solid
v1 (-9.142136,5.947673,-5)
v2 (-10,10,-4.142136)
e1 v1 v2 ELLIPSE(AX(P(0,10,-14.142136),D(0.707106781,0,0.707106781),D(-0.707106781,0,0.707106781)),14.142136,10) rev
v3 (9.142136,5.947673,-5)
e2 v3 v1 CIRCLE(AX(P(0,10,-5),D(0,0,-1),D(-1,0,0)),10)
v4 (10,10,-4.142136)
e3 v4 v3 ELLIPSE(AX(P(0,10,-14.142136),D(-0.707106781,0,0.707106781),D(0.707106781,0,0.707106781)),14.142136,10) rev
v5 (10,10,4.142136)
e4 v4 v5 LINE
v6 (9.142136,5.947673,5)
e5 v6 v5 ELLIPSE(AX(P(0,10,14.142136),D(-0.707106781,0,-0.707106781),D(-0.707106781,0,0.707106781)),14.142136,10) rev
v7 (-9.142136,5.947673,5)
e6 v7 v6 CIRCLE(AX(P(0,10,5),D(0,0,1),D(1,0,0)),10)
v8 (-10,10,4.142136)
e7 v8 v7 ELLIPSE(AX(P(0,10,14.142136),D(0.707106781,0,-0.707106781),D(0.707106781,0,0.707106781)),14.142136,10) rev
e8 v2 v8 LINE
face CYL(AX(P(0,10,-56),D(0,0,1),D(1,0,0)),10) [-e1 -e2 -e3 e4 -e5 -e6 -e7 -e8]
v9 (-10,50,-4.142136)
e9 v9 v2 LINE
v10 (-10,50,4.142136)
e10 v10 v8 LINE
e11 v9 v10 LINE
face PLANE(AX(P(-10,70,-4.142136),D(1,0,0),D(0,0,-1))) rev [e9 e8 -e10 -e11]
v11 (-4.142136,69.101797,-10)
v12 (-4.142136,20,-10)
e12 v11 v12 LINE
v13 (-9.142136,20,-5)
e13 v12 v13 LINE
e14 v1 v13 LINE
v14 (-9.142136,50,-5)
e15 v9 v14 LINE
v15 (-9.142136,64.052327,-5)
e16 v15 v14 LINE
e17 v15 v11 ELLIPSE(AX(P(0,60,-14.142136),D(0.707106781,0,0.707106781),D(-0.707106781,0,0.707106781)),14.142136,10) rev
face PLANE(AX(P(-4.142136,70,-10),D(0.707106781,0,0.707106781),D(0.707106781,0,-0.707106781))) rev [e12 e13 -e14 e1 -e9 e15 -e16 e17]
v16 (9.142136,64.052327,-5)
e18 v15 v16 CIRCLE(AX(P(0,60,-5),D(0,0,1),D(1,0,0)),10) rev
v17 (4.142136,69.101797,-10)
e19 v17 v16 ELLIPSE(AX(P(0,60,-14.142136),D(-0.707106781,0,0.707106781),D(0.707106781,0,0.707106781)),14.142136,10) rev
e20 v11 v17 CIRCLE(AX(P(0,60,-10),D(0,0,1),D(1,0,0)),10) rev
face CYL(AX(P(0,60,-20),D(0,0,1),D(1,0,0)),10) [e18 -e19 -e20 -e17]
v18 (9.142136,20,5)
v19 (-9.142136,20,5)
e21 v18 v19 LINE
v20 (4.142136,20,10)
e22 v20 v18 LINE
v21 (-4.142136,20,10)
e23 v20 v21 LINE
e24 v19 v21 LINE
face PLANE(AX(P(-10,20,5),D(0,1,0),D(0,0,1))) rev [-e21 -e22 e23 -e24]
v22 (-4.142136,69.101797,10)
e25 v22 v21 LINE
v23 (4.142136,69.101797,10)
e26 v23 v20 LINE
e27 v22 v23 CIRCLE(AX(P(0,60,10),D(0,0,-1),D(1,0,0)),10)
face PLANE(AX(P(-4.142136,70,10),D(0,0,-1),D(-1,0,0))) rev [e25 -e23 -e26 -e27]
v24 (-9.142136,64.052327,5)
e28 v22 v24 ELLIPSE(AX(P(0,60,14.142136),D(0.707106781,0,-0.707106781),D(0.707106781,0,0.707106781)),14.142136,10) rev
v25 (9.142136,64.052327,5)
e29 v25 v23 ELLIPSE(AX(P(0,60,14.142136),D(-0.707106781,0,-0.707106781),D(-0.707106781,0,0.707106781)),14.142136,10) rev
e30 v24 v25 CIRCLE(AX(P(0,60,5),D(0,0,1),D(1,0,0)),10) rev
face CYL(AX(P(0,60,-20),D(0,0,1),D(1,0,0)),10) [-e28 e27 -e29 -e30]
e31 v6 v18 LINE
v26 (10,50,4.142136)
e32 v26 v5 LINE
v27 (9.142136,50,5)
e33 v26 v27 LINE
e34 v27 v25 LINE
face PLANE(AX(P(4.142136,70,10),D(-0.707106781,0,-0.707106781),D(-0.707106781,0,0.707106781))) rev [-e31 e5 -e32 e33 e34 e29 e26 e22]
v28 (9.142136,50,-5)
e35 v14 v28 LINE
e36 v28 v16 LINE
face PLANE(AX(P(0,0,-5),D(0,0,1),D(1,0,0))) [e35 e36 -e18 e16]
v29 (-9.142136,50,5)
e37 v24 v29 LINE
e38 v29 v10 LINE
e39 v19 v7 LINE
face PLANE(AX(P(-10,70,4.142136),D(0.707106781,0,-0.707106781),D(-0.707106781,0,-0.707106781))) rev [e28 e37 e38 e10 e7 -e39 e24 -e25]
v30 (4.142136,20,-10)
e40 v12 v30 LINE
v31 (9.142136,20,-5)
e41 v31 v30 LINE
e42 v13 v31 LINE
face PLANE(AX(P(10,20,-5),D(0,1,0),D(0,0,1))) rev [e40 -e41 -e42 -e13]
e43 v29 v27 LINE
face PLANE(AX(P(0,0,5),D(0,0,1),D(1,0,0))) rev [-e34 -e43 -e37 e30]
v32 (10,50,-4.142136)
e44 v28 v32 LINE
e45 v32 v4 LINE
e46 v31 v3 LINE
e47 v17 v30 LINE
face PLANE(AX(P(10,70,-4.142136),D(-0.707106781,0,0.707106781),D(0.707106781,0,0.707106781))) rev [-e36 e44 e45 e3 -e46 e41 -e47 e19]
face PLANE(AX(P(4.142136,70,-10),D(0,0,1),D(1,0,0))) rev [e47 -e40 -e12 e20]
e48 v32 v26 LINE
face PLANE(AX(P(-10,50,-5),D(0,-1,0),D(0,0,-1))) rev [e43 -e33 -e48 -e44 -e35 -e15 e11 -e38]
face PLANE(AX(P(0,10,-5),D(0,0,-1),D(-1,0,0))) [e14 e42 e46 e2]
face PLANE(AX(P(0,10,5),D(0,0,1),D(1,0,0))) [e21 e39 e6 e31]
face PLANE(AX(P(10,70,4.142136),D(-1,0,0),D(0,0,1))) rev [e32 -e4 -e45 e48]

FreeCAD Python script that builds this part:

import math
import FreeCAD as App
import Part
import Sketcher
from FreeCAD import Vector

doc = App.newDocument("Part")
body = doc.addObject("PartDesign::Body", "Body")

sketch1 = doc.addObject("Sketcher::SketchObject", "Sketch")
body.addObject(sketch1)
sketch1.AttachmentSupport = (doc.XZ_Plane, [""])
sketch1.MapMode = "FlatFace"
sketch1.addGeometry([
    Part.LineSegment(Vector(10, -4.142136, 0), Vector(4.142136, -10, 0)),
    Part.LineSegment(Vector(4.142136, -10, 0), Vector(-4.142136, -10, 0)),
    Part.LineSegment(Vector(-4.142136, -10, 0), Vector(-10, -4.142136, 0)),
    Part.LineSegment(Vector(-10, -4.142136, 0), Vector(-10, 4.142136, 0)),
    Part.LineSegment(Vector(-10, 4.142136, 0), Vector(-4.142136, 10, 0)),
    Part.LineSegment(Vector(-4.142136, 10, 0), Vector(4.142136, 10, 0)),
    Part.LineSegment(Vector(4.142136, 10, 0), Vector(10, 4.142136, 0)),
    Part.LineSegment(Vector(10, 4.142136, 0), Vector(10, -4.142136, 0)),
], False)
sketch1.addConstraint([
    Sketcher.Constraint("Coincident", 0, 2, 1, 1),
    Sketcher.Constraint("Coincident", 1, 2, 2, 1),
    Sketcher.Constraint("Coincident", 2, 2, 3, 1),
    Sketcher.Constraint("Coincident", 3, 2, 4, 1),
    Sketcher.Constraint("Coincident", 4, 2, 5, 1),
    Sketcher.Constraint("Coincident", 5, 2, 6, 1),
    Sketcher.Constraint("Coincident", 6, 2, 7, 1),
    Sketcher.Constraint("Coincident", 7, 2, 0, 1),
    Sketcher.Constraint("Horizontal", 1),
    Sketcher.Constraint("Vertical", 3),
    Sketcher.Constraint("Horizontal", 5),
    Sketcher.Constraint("Vertical", 7),
    Sketcher.Constraint("Symmetric", 0, 2, 4, 2, -1, 1),
    Sketcher.Constraint("Symmetric", 2, 2, 6, 2, -1, 1),
    Sketcher.Constraint("Perpendicular", 0, 2),
    Sketcher.Constraint("Perpendicular", 2, 4),
    Sketcher.Constraint("Perpendicular", 4, 6),
    Sketcher.Constraint("Horizontal", 3, 2, 6, 2),
    Sketcher.Constraint("Vertical", 1, 2, 4, 2),
    Sketcher.Constraint("Equal", 5, 3),
    Sketcher.Constraint("DistanceY", 0, 2, -1, 1, 10.0),
    Sketcher.Constraint("DistanceX", 1, 2, 1, 1, 8.284271),
])
pad1 = doc.addObject("PartDesign::Pad", "Pad")
body.addObject(pad1)
pad1.Profile = sketch1
pad1.Length = 70
pad1.Reversed = True

sketch2 = doc.addObject("Sketcher::SketchObject", "Sketch001")
body.addObject(sketch2)
sketch2.AttachmentSupport = (doc.XY_Plane, [""])
sketch2.MapMode = "FlatFace"
sketch2.AttachmentOffset = App.Placement(Vector(0, 0, 10), App.Rotation())
sketch2.addGeometry([
    Part.LineSegment(Vector(-10, 10, 0), Vector(-10, -2.389296, 0)),
    Part.LineSegment(Vector(-10, -2.389296, 0), Vector(10, -2.389296, 0)),
    Part.LineSegment(Vector(10, -2.389296, 0), Vector(10, 10, 0)),
    Part.ArcOfCircle(Part.Circle(Vector(0, 10, 0), Vector(0, 0, 1), 10), math.radians(180), math.radians(360)),
], False)
sketch2.addConstraint([
    Sketcher.Constraint("Coincident", 0, 2, 1, 1),
    Sketcher.Constraint("Coincident", 1, 2, 2, 1),
    Sketcher.Constraint("Tangent", 2, 2, 3, 2),
    Sketcher.Constraint("Tangent", 3, 1, 0, 1),
    Sketcher.Constraint("Vertical", 0),
    Sketcher.Constraint("Horizontal", 1),
    Sketcher.Constraint("Vertical", 2),
    Sketcher.Constraint("PointOnObject", 3, 3, -2),
    Sketcher.Constraint("Radius", 3, 10.0),
    Sketcher.Constraint("DistanceY", -1, 1, 3, 3, 10.0),
    Sketcher.Constraint("DistanceY", 0, 2, 0, 1, 12.389296),
])
pocket1 = doc.addObject("PartDesign::Pocket", "Pocket")
body.addObject(pocket1)
pocket1.Profile = sketch2
pocket1.Length = 66

sketch3 = doc.addObject("Sketcher::SketchObject", "Sketch002")
body.addObject(sketch3)
sketch3.AttachmentSupport = (doc.XY_Plane, [""])
sketch3.MapMode = "FlatFace"
sketch3.AttachmentOffset = App.Placement(Vector(0, 0, 10), App.Rotation())
sketch3.addGeometry([
    Part.LineSegment(Vector(-10, 20, 0), Vector(-10, 10, 0)),
    Part.ArcOfCircle(Part.Circle(Vector(0, 10, 0), Vector(0, 0, 1), 10), math.radians(180), math.radians(360)),
    Part.LineSegment(Vector(10, 10, 0), Vector(10, 20, 0)),
    Part.LineSegment(Vector(10, 20, 0), Vector(-10, 20, 0)),
], False)
sketch3.addConstraint([
    Sketcher.Constraint("Tangent", 0, 2, 1, 1),
    Sketcher.Constraint("Tangent", 1, 2, 2, 1),
    Sketcher.Constraint("Coincident", 2, 2, 3, 1),
    Sketcher.Constraint("Coincident", 3, 2, 0, 1),
    Sketcher.Constraint("Vertical", 0),
    Sketcher.Constraint("Vertical", 2),
    Sketcher.Constraint("Horizontal", 3),
    Sketcher.Constraint("PointOnObject", 1, 3, -2),
    Sketcher.Constraint("Radius", 1, 10.0),
    Sketcher.Constraint("DistanceY", 0, 2, 0, 1, 10.0),
    Sketcher.Constraint("DistanceY", -1, 1, 1, 3, 10.0),
])
pocket2 = doc.addObject("PartDesign::Pocket", "Pocket001")
body.addObject(pocket2)
pocket2.Profile = sketch3
pocket2.Length = 5

sketch4 = doc.addObject("Sketcher::SketchObject", "Sketch003")
body.addObject(sketch4)
sketch4.AttachmentSupport = (doc.XY_Plane, [""])
sketch4.MapMode = "FlatFace"
sketch4.AttachmentOffset = App.Placement(Vector(0, 0, -5), App.Rotation())
sketch4.addGeometry([
    Part.LineSegment(Vector(10, 20, 0), Vector(10, 10, 0)),
    Part.ArcOfCircle(Part.Circle(Vector(0, 10, 0), Vector(0, 0, 1), 10), math.radians(180), math.radians(360)),
    Part.LineSegment(Vector(-10, 10, 0), Vector(-10, 20, 0)),
    Part.LineSegment(Vector(-10, 20, 0), Vector(10, 20, 0)),
], False)
sketch4.addConstraint([
    Sketcher.Constraint("Tangent", 0, 2, 1, 2),
    Sketcher.Constraint("Tangent", 1, 1, 2, 1),
    Sketcher.Constraint("Coincident", 2, 2, 3, 1),
    Sketcher.Constraint("Coincident", 3, 2, 0, 1),
    Sketcher.Constraint("Vertical", 0),
    Sketcher.Constraint("Vertical", 2),
    Sketcher.Constraint("Horizontal", 3),
    Sketcher.Constraint("PointOnObject", 1, 3, -2),
    Sketcher.Constraint("Radius", 1, 10.0),
    Sketcher.Constraint("DistanceY", 0, 2, 0, 1, 10.0),
    Sketcher.Constraint("DistanceY", -1, 1, 1, 3, 10.0),
])
pocket3 = doc.addObject("PartDesign::Pocket", "Pocket002")
body.addObject(pocket3)
pocket3.Profile = sketch4
pocket3.Length = 5

sketch5 = doc.addObject("Sketcher::SketchObject", "Sketch004")
body.addObject(sketch5)
sketch5.AttachmentSupport = (doc.XY_Plane, [""])
sketch5.MapMode = "FlatFace"
sketch5.addGeometry([
    Part.LineSegment(Vector(-10, 70, 0), Vector(-10, 50, 0)),
    Part.LineSegment(Vector(-10, 50, 0), Vector(10, 50, 0)),
    Part.LineSegment(Vector(10, 50, 0), Vector(10, 70, 0)),
    Part.LineSegment(Vector(10, 70, 0), Vector(-10, 70, 0)),
], False)
sketch5.addConstraint([
    Sketcher.Constraint("Coincident", 0, 2, 1, 1),
    Sketcher.Constraint("Coincident", 1, 2, 2, 1),
    Sketcher.Constraint("Coincident", 2, 2, 3, 1),
    Sketcher.Constraint("Coincident", 3, 2, 0, 1),
    Sketcher.Constraint("Vertical", 0),
    Sketcher.Constraint("Horizontal", 1),
    Sketcher.Constraint("Vertical", 2),
    Sketcher.Constraint("Horizontal", 3),
    Sketcher.Constraint("Equal", 3, 0),
    Sketcher.Constraint("DistanceX", 1, 1, 1, 2, 20.0),
    Sketcher.Constraint("DistanceX", 0, 2, -1, 1, 10.0),
    Sketcher.Constraint("DistanceY", -1, 1, 0, 2, 50.0),
])
pocket4 = doc.addObject("PartDesign::Pocket", "Pocket003")
body.addObject(pocket4)
pocket4.Profile = sketch5
pocket4.Length = 10
pocket4.Midplane = True

sketch6 = doc.addObject("Sketcher::SketchObject", "Sketch005")
body.addObject(sketch6)
sketch6.AttachmentSupport = (doc.XY_Plane, [""])
sketch6.MapMode = "FlatFace"
sketch6.AttachmentOffset = App.Placement(Vector(0, 0, 10), App.Rotation())
sketch6.addGeometry([
    Part.LineSegment(Vector(-10, 77.82604, 0), Vector(-10, 60, 0)),
    Part.ArcOfCircle(Part.Circle(Vector(0, 60, 0), Vector(0, 0, 1), 10), math.radians(0), math.radians(180)),
    Part.LineSegment(Vector(10, 60, 0), Vector(10, 77.82604, 0)),
    Part.LineSegment(Vector(10, 77.82604, 0), Vector(-10, 77.82604, 0)),
], False)
sketch6.addConstraint([
    Sketcher.Constraint("Tangent", 0, 2, 1, 2),
    Sketcher.Constraint("Tangent", 1, 1, 2, 1),
    Sketcher.Constraint("Coincident", 2, 2, 3, 1),
    Sketcher.Constraint("Coincident", 3, 2, 0, 1),
    Sketcher.Constraint("Vertical", 0),
    Sketcher.Constraint("Vertical", 2),
    Sketcher.Constraint("Horizontal", 3),
    Sketcher.Constraint("PointOnObject", 1, 3, -2),
    Sketcher.Constraint("Radius", 1, 10.0),
    Sketcher.Constraint("DistanceY", -1, 1, 1, 3, 60.0),
    Sketcher.Constraint("DistanceY", 0, 2, 0, 1, 17.82604),
])
pocket5 = doc.addObject("PartDesign::Pocket", "Pocket004")
body.addObject(pocket5)
pocket5.Profile = sketch6
pocket5.Length = 30

doc.recompute()
